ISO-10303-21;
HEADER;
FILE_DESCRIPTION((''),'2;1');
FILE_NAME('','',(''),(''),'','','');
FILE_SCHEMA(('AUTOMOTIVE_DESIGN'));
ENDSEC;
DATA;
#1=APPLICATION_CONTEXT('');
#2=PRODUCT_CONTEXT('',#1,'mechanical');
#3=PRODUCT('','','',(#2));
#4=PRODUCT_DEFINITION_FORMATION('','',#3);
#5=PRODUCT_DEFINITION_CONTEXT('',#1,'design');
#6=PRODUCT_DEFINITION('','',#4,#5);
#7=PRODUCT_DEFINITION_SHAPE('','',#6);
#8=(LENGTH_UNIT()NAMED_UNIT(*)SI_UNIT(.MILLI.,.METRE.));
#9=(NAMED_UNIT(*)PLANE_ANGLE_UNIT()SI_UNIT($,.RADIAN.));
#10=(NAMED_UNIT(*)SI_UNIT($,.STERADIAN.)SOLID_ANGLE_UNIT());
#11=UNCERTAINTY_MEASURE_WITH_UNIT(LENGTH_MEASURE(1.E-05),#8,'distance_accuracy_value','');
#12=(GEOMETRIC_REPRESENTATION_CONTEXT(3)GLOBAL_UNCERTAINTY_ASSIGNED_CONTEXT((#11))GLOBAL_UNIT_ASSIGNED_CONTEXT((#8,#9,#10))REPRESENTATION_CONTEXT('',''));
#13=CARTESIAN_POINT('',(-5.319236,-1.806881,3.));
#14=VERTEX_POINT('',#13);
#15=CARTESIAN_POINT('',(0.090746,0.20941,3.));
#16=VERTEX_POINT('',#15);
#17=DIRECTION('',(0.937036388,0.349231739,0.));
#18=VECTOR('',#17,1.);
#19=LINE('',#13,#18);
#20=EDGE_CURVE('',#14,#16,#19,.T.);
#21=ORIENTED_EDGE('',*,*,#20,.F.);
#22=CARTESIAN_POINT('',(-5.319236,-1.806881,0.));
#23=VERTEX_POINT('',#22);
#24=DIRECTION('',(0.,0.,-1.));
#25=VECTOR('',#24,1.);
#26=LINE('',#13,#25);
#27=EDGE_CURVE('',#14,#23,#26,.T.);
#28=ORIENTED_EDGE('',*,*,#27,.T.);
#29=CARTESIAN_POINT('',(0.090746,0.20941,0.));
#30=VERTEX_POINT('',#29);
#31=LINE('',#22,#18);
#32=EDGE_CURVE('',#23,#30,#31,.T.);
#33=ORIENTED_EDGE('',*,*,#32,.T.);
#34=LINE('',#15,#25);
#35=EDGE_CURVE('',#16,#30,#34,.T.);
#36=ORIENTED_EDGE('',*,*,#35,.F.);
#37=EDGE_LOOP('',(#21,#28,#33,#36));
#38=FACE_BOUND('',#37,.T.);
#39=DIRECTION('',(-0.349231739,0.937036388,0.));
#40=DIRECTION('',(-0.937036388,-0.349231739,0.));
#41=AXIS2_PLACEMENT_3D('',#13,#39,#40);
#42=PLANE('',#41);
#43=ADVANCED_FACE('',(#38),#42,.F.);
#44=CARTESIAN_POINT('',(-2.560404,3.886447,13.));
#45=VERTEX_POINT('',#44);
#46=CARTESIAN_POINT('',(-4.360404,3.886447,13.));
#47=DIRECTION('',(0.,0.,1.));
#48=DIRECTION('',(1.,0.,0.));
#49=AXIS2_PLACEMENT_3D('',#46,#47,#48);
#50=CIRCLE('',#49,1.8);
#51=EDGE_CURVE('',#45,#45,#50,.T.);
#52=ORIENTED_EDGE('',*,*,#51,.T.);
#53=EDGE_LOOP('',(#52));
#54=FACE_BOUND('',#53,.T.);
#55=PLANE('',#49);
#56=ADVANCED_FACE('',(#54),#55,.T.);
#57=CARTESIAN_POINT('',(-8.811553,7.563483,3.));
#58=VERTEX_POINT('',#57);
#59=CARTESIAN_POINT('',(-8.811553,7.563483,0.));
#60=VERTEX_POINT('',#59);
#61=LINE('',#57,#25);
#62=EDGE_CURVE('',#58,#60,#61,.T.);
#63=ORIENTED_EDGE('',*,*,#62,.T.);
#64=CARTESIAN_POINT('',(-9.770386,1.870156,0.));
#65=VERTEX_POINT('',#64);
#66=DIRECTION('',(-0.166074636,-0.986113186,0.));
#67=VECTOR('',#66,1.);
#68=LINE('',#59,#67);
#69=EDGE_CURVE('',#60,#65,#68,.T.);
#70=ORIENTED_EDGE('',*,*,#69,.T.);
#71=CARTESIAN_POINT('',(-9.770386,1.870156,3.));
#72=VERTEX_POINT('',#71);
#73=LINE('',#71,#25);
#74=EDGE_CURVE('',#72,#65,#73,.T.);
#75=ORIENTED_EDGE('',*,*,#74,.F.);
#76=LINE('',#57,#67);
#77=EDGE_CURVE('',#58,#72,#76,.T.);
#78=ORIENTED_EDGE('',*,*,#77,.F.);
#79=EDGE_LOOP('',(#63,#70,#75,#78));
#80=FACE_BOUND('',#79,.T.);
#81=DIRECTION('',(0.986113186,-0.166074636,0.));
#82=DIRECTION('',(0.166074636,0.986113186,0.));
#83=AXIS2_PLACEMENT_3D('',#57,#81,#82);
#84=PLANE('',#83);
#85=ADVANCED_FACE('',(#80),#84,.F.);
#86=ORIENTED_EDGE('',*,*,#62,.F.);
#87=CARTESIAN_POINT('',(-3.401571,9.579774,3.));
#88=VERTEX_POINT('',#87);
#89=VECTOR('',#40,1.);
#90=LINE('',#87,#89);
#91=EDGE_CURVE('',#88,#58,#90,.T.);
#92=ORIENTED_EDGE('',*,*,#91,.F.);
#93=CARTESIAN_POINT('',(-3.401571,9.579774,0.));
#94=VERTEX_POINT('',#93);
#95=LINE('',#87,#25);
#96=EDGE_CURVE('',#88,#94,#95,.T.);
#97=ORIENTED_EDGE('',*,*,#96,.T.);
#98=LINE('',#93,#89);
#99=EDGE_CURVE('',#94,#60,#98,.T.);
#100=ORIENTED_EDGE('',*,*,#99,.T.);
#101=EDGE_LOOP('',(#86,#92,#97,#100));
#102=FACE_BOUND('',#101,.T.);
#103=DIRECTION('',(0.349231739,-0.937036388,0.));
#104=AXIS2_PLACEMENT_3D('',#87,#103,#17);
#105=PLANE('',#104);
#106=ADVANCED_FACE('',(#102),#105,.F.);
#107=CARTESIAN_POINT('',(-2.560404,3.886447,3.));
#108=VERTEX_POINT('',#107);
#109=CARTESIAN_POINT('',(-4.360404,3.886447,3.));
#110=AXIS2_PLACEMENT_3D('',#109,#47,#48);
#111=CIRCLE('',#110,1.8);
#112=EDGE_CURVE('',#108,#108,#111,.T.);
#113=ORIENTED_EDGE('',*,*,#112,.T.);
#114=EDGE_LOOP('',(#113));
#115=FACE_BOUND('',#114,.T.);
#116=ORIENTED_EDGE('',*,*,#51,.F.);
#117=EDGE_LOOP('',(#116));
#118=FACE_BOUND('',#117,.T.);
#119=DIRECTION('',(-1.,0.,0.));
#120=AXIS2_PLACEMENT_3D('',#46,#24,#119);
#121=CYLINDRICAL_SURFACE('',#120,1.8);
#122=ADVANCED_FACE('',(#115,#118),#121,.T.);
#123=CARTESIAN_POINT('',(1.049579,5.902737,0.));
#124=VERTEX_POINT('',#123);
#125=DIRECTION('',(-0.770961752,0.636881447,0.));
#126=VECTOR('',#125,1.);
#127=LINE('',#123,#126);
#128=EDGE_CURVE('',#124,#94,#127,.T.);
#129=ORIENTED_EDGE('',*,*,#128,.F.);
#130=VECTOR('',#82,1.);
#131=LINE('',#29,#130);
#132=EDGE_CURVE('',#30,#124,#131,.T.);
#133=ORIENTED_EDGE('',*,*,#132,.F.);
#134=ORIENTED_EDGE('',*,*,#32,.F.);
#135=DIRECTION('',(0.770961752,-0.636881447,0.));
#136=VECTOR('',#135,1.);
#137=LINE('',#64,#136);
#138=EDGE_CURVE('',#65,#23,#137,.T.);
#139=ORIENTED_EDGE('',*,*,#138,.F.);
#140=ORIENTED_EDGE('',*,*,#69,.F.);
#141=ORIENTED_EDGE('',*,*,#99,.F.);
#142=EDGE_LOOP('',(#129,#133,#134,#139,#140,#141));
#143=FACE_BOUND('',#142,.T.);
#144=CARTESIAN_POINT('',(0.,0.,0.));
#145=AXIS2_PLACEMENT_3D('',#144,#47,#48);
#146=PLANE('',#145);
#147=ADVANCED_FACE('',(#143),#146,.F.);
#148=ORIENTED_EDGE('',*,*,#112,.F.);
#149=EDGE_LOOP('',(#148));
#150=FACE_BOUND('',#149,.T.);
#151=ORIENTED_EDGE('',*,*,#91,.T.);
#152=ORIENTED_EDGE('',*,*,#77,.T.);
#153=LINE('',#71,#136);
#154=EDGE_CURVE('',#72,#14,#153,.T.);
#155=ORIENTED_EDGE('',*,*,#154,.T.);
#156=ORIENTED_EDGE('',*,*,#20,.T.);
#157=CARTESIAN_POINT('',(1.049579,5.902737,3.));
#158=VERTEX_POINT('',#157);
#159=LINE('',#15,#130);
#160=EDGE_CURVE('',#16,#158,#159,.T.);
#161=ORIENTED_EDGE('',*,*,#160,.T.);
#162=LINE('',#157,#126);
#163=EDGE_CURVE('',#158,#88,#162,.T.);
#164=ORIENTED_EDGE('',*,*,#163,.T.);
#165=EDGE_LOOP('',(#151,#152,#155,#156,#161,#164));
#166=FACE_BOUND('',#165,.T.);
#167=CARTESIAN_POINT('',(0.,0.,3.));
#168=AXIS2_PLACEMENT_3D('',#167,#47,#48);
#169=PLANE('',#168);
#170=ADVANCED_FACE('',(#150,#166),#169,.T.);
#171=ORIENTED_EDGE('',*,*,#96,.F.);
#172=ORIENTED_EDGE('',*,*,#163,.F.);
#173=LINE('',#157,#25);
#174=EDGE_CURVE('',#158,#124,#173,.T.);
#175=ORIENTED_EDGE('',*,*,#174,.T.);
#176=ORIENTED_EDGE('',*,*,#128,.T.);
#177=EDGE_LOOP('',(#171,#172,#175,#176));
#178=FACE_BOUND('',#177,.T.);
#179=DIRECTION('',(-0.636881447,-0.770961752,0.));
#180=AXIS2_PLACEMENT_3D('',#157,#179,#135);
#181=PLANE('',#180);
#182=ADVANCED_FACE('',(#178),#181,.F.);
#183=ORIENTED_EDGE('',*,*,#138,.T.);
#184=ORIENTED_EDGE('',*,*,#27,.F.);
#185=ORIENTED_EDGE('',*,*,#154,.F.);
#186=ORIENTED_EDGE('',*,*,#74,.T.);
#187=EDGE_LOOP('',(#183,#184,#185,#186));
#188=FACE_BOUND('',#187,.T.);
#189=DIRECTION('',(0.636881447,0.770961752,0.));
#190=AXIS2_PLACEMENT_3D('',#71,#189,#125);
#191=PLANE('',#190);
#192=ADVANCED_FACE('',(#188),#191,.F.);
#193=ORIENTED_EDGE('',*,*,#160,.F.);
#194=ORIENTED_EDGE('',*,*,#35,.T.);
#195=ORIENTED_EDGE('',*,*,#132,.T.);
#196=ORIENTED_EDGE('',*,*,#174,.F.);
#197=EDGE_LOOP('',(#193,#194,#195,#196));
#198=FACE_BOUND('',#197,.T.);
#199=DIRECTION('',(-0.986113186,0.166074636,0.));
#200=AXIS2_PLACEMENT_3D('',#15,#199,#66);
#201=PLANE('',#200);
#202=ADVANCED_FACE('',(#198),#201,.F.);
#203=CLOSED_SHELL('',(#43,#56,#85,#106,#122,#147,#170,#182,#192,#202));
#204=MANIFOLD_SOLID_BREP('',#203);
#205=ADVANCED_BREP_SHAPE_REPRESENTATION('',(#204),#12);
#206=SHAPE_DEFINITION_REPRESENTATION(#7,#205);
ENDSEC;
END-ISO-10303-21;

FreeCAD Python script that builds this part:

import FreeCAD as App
import Part
import Sketcher
from FreeCAD import Vector
Q = App.Units.Quantity

doc = App.newDocument("Part")
body = doc.addObject("PartDesign::Body", "Body")

sketch1 = body.newObject("Sketcher::SketchObject", "Sketch")
sketch1.AttachmentSupport = (doc.getObject("XY_Plane"), [""])
sketch1.MapMode = "FlatFace"
sketch1.addGeometry(Part.LineSegment(Vector(0.090746, 0.20941, 0), Vector(1.049579, 5.902737, 0)), False)
sketch1.addGeometry(Part.LineSegment(Vector(1.049579, 5.902737, 0), Vector(-3.401571, 9.579774, 0)), False)
sketch1.addGeometry(Part.LineSegment(Vector(-3.401571, 9.579774, 0), Vector(-8.811553, 7.563483, 0)), False)
sketch1.addGeometry(Part.LineSegment(Vector(-8.811553, 7.563483, 0), Vector(-9.770386, 1.870156, 0)), False)
sketch1.addGeometry(Part.LineSegment(Vector(-9.770386, 1.870156, 0), Vector(-5.319236, -1.806881, 0)), False)
sketch1.addGeometry(Part.LineSegment(Vector(-5.319236, -1.806881, 0), Vector(0.090746, 0.20941, 0)), False)
sketch1.addConstraint(Sketcher.Constraint("Coincident", 0, 2, 1, 1))
sketch1.addConstraint(Sketcher.Constraint("Coincident", 1, 2, 2, 1))
sketch1.addConstraint(Sketcher.Constraint("Coincident", 2, 2, 3, 1))
sketch1.addConstraint(Sketcher.Constraint("Coincident", 3, 2, 4, 1))
sketch1.addConstraint(Sketcher.Constraint("Coincident", 4, 2, 5, 1))
sketch1.addConstraint(Sketcher.Constraint("Coincident", 5, 2, 0, 1))
sketch1.addConstraint(Sketcher.Constraint("Parallel", 0, 3))
sketch1.addConstraint(Sketcher.Constraint("Parallel", 1, 4))
sketch1.addConstraint(Sketcher.Constraint("Parallel", 2, 5))
sketch1.addConstraint(Sketcher.Constraint("Equal", 0, 1))
sketch1.addConstraint(Sketcher.Constraint("Equal", 1, 2))
sketch1.addConstraint(Sketcher.Constraint("Equal", 2, 3))
sketch1.addConstraint(Sketcher.Constraint("DistanceX", 2, 2, 5, 2, Q("8.902299 mm")))
sketch1.addConstraint(Sketcher.Constraint("DistanceX", -1, 1, 0, 2, Q("1.049579 mm")))
sketch1.addConstraint(Sketcher.Constraint("DistanceX", 1, 2, -1, 1, Q("3.401571 mm")))
sketch1.addConstraint(Sketcher.Constraint("DistanceY", 4, 2, -1, 1, Q("1.806881 mm")))
sketch1.addConstraint(Sketcher.Constraint("DistanceY", -1, 1, 5, 2, Q("0.20941 mm")))
sketch1.addConstraint(Sketcher.Constraint("DistanceX", 2, 2, 0, 2, Q("9.861132 mm")))
pad1 = body.newObject("PartDesign::Pad", "Pad")
pad1.Profile = sketch1
pad1.Length = 3

sketch2 = body.newObject("Sketcher::SketchObject", "Sketch001")
sketch2.AttachmentSupport = (doc.getObject("XY_Plane"), [""])
sketch2.MapMode = "FlatFace"
sketch2.AttachmentOffset = App.Placement(Vector(0, 0, 3), App.Rotation())
sketch2.addGeometry(Part.Circle(Vector(-4.360404, 3.886447, 0), Vector(0, 0, 1), 1.8), False)
sketch2.addConstraint(Sketcher.Constraint("Diameter", 0, Q("3.6 mm")))
sketch2.addConstraint(Sketcher.Constraint("DistanceX", 0, 3, -1, 1, Q("4.360404 mm")))
sketch2.addConstraint(Sketcher.Constraint("DistanceY", -1, 1, 0, 3, Q("3.886447 mm")))
pad2 = body.newObject("PartDesign::Pad", "Pad001")
pad2.Profile = sketch2
pad2.Length = 10

doc.recompute()
